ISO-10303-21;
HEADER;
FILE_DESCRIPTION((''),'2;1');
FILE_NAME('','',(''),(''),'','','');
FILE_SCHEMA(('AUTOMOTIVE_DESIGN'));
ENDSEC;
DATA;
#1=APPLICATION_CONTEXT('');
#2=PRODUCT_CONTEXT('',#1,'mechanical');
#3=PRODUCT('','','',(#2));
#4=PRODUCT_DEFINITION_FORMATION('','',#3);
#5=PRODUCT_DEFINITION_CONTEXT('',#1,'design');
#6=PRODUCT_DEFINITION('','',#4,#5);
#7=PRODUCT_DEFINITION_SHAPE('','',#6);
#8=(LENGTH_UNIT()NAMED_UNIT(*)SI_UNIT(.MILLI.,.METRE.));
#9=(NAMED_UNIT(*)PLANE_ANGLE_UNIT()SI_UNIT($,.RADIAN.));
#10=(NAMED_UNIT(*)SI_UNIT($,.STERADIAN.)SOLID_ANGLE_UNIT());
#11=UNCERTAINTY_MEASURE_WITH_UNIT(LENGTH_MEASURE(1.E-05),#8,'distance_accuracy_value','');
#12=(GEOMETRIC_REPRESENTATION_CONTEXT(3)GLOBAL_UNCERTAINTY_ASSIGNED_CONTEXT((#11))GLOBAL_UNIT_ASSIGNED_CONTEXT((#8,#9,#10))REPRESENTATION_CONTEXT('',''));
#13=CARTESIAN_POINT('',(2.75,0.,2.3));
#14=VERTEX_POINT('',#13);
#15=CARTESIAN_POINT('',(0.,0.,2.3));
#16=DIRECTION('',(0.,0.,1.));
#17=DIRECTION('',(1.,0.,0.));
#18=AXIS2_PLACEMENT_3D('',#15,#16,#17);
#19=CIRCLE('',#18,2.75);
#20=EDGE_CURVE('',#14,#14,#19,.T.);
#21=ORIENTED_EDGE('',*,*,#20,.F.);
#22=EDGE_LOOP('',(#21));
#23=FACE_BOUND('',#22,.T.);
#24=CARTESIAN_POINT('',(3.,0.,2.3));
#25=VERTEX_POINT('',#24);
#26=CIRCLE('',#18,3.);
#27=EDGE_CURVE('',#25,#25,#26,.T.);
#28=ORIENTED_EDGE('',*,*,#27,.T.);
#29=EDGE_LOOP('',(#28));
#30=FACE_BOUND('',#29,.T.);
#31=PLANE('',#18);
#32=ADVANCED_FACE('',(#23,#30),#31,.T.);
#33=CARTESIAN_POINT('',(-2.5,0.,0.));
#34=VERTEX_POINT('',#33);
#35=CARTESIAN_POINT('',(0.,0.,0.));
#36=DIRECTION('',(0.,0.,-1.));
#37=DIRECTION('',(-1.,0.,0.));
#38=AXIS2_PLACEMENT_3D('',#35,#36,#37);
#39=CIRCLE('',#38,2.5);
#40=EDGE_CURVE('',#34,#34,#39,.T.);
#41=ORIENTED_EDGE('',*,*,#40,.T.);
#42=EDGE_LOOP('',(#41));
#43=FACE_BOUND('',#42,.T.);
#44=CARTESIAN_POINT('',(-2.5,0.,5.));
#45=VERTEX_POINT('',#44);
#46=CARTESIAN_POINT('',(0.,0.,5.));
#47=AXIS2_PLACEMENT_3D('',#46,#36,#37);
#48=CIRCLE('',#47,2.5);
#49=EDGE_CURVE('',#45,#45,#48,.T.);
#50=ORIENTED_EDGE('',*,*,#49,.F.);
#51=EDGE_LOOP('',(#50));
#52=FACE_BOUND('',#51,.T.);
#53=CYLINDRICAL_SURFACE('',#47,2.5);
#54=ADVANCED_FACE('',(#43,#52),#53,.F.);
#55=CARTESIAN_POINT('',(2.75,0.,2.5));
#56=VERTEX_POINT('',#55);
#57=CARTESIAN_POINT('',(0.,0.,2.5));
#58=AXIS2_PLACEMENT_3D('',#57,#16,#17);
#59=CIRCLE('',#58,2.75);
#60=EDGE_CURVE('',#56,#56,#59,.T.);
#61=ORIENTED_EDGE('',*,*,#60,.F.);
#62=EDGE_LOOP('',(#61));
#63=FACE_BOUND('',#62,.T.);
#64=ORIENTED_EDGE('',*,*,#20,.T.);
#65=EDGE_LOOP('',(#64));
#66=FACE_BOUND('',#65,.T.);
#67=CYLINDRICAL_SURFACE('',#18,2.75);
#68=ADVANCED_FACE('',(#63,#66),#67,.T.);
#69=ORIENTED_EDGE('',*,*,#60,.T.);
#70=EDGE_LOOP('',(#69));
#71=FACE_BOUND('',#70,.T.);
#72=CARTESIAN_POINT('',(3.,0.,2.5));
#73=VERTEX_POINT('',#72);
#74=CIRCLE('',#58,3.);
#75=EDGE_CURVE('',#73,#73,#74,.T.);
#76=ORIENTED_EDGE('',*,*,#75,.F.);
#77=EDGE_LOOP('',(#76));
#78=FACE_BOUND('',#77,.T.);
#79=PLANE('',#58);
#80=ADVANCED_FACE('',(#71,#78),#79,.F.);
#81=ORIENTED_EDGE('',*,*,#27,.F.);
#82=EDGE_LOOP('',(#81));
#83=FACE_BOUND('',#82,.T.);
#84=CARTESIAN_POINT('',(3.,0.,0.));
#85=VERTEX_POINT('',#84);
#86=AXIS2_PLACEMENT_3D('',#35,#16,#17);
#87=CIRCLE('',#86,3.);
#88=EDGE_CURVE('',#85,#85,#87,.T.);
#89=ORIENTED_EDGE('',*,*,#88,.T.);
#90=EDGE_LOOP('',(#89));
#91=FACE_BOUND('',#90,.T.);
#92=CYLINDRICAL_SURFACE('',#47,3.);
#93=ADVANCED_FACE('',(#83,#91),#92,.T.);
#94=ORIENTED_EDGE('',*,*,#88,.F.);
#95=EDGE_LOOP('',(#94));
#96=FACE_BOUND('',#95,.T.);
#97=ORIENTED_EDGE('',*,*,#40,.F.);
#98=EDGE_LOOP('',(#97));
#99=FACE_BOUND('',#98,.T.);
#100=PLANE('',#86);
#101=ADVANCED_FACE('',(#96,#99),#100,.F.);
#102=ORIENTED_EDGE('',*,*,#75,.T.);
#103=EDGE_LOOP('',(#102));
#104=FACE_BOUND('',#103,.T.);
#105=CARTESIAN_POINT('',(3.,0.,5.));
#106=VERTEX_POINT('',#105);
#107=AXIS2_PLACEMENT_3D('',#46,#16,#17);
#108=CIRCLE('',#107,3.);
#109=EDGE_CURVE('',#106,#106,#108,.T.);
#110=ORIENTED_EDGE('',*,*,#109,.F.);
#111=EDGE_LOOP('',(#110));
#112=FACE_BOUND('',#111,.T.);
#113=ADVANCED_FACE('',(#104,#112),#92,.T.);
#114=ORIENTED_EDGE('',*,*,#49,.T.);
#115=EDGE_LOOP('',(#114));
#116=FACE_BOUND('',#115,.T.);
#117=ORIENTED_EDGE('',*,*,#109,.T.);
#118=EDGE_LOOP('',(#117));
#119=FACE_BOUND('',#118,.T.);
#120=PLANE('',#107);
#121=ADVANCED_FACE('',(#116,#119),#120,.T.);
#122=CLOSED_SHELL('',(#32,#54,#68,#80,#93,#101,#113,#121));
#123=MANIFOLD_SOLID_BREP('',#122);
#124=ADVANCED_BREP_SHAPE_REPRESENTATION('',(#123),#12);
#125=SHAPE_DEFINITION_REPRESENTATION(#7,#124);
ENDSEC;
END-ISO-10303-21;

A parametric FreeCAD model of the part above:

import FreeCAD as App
import Part
import Sketcher
from FreeCAD import Vector
Q = App.Units.Quantity

doc = App.newDocument("Part")
params = doc.addObject("Spreadsheet::Sheet", "Params")
for row, (alias, value) in enumerate([
    ("sketch1_diameter", "6 mm"),
    ("pad1_length", "5 mm"),
    ("sketch2_diameter", "5 mm"),
    ("pocket1_length", "5 mm"),
    ("sketch3_diameter", "6 mm"),
    ("sketch3_diameter2", "5.5 mm"),
    ("pocket2_length", "0.2 mm"),
], start=1):
    params.set(f"A{row}", alias)
    params.set(f"B{row}", "=" + value)
    params.setAlias(f"B{row}", alias)

body = doc.addObject("PartDesign::Body", "Body")

# Sketch on XY plane
sketch1 = body.newObject("Sketcher::SketchObject", "Sketch")
sketch1.AttachmentSupport = (doc.getObject("XY_Plane"), [""])
sketch1.MapMode = "FlatFace"
sketch1.addGeometry(Part.Circle(Vector(0, 0, 0), Vector(0, 0, 1), 3), False)
sketch1.addConstraint([
    Sketcher.Constraint("Coincident", 0, 3, -1, 1),
    Sketcher.Constraint("Diameter", 0, Q("6 mm")),
])
sketch1.setExpression("Constraints[1]", "Params.sketch1_diameter")
pad1 = body.newObject("PartDesign::Pad", "Pad")
pad1.Profile = sketch1
pad1.setExpression("Length", "Params.pad1_length")

# Sketch on XY plane
sketch2 = body.newObject("Sketcher::SketchObject", "Sketch001")
sketch2.AttachmentSupport = (doc.getObject("XY_Plane"), [""])
sketch2.MapMode = "FlatFace"
sketch2.addGeometry(Part.Circle(Vector(0, 0, 0), Vector(0, 0, 1), 2.5), False)
sketch2.addConstraint([
    Sketcher.Constraint("Coincident", 0, 3, -1, 1),
    Sketcher.Constraint("Diameter", 0, Q("5 mm")),
])
sketch2.setExpression("Constraints[1]", "Params.sketch2_diameter")
pocket1 = body.newObject("PartDesign::Pocket", "Pocket")
pocket1.Profile = sketch2
pocket1.setExpression("Length", "Params.pocket1_length")
pocket1.Reversed = True

# Sketch on XY plane
sketch3 = body.newObject("Sketcher::SketchObject", "Sketch002")
sketch3.AttachmentSupport = (doc.getObject("XY_Plane"), [""])
sketch3.MapMode = "FlatFace"
sketch3.AttachmentOffset = App.Placement(Vector(0, 0, 2.3), App.Rotation())
sketch3.addGeometry([
    Part.Circle(Vector(0, 0, 0), Vector(0, 0, 1), 3),
    Part.Circle(Vector(0, 0, 0), Vector(0, 0, 1), 2.8),
], False)
sketch3.addConstraint([
    Sketcher.Constraint("Coincident", 0, 3, -1, 1),
    Sketcher.Constraint("Coincident", 1, 3, -1, 1),
    Sketcher.Constraint("Diameter", 0, Q("6 mm")),
    Sketcher.Constraint("Diameter", 1, Q("5.5 mm")),
])
sketch3.setExpression("Constraints[2]", "Params.sketch3_diameter")
sketch3.setExpression("Constraints[3]", "Params.sketch3_diameter2")
pocket2 = body.newObject("PartDesign::Pocket", "Pocket001")
pocket2.Profile = sketch3
pocket2.setExpression("Length", "Params.pocket2_length")
pocket2.Reversed = True

doc.recompute()
